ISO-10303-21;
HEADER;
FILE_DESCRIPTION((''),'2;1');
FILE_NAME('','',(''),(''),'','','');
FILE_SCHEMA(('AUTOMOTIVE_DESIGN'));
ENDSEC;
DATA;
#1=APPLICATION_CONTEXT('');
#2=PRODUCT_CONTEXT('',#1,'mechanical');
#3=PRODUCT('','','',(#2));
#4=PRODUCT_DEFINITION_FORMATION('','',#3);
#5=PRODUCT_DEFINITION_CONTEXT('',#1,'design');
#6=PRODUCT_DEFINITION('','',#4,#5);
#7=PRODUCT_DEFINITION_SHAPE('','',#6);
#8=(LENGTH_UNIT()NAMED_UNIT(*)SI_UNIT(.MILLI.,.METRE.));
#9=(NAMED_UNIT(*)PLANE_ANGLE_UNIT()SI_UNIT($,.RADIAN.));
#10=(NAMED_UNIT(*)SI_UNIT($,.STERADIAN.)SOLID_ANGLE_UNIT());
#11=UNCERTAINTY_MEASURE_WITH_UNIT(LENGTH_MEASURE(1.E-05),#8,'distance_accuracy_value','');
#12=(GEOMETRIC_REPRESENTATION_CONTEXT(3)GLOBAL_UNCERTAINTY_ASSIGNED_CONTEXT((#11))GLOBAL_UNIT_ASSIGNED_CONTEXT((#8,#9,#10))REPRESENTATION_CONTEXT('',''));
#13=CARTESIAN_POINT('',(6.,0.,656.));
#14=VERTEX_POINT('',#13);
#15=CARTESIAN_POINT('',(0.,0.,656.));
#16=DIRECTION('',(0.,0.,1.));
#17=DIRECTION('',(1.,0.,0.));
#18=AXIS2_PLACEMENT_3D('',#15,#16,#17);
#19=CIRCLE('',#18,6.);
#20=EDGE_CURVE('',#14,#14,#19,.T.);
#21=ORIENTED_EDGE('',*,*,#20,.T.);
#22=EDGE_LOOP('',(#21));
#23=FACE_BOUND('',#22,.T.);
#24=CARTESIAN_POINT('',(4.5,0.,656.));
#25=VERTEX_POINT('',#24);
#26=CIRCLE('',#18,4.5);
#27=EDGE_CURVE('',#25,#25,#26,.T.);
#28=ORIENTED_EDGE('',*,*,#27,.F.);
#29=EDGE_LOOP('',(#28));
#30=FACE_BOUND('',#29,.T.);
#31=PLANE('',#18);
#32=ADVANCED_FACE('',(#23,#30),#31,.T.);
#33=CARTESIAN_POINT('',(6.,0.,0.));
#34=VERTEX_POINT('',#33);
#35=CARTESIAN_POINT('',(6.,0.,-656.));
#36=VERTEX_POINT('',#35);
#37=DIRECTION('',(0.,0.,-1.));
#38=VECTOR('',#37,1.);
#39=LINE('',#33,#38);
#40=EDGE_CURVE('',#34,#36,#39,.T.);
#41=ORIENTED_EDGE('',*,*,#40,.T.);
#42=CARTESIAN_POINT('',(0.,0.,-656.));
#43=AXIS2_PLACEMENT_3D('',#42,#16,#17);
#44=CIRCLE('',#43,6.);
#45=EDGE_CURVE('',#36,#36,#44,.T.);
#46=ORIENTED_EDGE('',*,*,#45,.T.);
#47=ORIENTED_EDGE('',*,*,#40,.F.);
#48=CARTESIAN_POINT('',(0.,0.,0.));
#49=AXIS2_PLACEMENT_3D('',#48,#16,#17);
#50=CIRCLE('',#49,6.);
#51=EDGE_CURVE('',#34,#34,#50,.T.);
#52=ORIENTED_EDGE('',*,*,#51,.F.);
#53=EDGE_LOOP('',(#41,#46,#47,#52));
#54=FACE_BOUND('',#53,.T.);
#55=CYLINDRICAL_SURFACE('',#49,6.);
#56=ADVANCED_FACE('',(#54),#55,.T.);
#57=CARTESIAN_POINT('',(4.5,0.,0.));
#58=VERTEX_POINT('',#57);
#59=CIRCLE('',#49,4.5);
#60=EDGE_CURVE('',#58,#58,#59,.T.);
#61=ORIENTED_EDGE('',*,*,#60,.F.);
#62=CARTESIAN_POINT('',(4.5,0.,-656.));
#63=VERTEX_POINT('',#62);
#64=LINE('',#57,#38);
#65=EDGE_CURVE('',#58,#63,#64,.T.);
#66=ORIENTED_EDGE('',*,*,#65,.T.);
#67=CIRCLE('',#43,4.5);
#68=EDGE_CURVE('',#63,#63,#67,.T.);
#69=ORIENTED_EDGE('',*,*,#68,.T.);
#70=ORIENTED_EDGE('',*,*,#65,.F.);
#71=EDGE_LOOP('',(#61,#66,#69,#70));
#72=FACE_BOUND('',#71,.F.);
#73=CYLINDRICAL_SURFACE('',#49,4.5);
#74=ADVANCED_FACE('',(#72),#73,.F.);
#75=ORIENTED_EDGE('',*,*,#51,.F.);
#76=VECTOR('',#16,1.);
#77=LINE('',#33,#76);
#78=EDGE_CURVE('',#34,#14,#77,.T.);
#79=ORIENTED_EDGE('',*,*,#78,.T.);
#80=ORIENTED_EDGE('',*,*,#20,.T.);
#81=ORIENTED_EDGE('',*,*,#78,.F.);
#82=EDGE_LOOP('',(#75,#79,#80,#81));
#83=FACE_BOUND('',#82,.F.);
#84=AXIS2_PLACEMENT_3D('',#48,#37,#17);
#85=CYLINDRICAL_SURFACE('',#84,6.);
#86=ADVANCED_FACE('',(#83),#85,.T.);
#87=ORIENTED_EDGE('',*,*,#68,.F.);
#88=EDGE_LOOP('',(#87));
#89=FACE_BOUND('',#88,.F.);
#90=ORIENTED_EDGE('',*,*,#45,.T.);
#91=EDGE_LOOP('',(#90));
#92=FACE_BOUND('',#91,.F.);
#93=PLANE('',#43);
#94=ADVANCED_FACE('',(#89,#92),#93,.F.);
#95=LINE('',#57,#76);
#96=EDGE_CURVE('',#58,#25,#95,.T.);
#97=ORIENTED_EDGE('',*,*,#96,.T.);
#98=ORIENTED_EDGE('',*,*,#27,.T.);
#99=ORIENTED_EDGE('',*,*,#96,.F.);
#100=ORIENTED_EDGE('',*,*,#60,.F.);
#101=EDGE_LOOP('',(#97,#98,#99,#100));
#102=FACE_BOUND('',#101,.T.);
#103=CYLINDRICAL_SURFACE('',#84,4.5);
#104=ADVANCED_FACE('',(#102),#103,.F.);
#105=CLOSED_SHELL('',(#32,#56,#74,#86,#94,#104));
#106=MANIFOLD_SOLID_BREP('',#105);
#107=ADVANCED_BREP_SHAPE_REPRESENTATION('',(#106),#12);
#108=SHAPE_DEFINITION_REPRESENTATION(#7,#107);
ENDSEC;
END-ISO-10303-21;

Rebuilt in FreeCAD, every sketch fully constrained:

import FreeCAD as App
import Part
import Sketcher
from FreeCAD import Vector
Q = App.Units.Quantity

doc = App.newDocument("Part")
body = doc.addObject("PartDesign::Body", "Body")

# Sketch on XY plane
sketch1 = body.newObject("Sketcher::SketchObject", "Sketch")
sketch1.AttachmentSupport = (doc.getObject("XY_Plane"), [""])
sketch1.MapMode = "FlatFace"
sketch1.addGeometry([
    Part.Circle(Vector(0, 0, 0), Vector(0, 0, 1), 6),
    Part.Circle(Vector(0, 0, 0), Vector(0, 0, 1), 4.5),
], False)
sketch1.addConstraint([
    Sketcher.Constraint("Coincident", 0, 3, -1, 1),
    Sketcher.Constraint("Coincident", 1, 3, -1, 1),
    Sketcher.Constraint("Diameter", 0, Q("12 mm")),
    Sketcher.Constraint("Diameter", 1, Q("9 mm")),
])
pad1 = body.newObject("PartDesign::Pad", "Pad")
pad1.Profile = sketch1
pad1.Length = 1312
pad1.Midplane = True

doc.recompute()
